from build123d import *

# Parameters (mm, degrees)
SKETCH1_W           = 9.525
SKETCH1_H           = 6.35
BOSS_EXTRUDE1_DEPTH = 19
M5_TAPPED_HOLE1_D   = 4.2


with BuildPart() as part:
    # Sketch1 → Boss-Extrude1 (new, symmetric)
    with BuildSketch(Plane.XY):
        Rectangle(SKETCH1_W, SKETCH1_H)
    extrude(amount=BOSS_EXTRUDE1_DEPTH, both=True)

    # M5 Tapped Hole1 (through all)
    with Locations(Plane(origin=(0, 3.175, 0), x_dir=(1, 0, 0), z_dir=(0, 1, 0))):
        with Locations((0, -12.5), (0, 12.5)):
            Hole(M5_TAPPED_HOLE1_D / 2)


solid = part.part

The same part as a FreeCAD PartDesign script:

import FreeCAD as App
import Part
import Sketcher

V = App.Vector

doc = App.newDocument("Part")
body = doc.addObject("PartDesign::Body", "Body")

sketch1 = body.newObject("Sketcher::SketchObject", "Sketch")
sketch1.AttachmentSupport = (doc.getObject("XY_Plane"), [""])
sketch1.MapMode = "FlatFace"
sketch1.addGeometry(Part.LineSegment(V(-5, 3, 0), V(-5, -3, 0)), False)
sketch1.addGeometry(Part.LineSegment(V(-5, -3, 0), V(5, -3, 0)), False)
sketch1.addGeometry(Part.LineSegment(V(5, -3, 0), V(5, 3, 0)), False)
sketch1.addGeometry(Part.LineSegment(V(5, 3, 0), V(-5, 3, 0)), False)
sketch1.addConstraint(Sketcher.Constraint("Coincident", 0, 2, 1, 1))
sketch1.addConstraint(Sketcher.Constraint("Coincident", 1, 2, 2, 1))
sketch1.addConstraint(Sketcher.Constraint("Coincident", 2, 2, 3, 1))
sketch1.addConstraint(Sketcher.Constraint("Coincident", 3, 2, 0, 1))
sketch1.addConstraint(Sketcher.Constraint("Vertical", 0))
sketch1.addConstraint(Sketcher.Constraint("Horizontal", 1))
sketch1.addConstraint(Sketcher.Constraint("Vertical", 2))
sketch1.addConstraint(Sketcher.Constraint("Horizontal", 3))
sketch1.addConstraint(Sketcher.Constraint("Symmetric", 0, 2, 2, 2, -1, 1))
sketch1.addConstraint(Sketcher.Constraint("DistanceY", 0, 2, 0, 1, 6.35))
sketch1.addConstraint(Sketcher.Constraint("DistanceX", 1, 1, 1, 2, 9.525))
pad1 = body.newObject("PartDesign::Pad", "Pad")
pad1.Profile = sketch1
pad1.Length = 38
pad1.Midplane = True

sketch2 = body.newObject("Sketcher::SketchObject", "Sketch001")
sketch2.AttachmentSupport = (doc.getObject("XZ_Plane"), [""])
sketch2.MapMode = "FlatFace"
sketch2.AttachmentOffset = App.Placement(V(0, 0, -3.175), App.Rotation())
sketch2.addGeometry(Part.Circle(V(0, 12.5, 0), V(0, 0, 1), 2.1), False)
sketch2.addGeometry(Part.Circle(V(0, -12.5, 0), V(0, 0, 1), 2.1), False)
sketch2.addConstraint(Sketcher.Constraint("Equal", 0, 1))
sketch2.addConstraint(Sketcher.Constraint("Symmetric", 0, 3, 1, 3, -1, 1))
sketch2.addConstraint(Sketcher.Constraint("PointOnObject", 0, 3, -2))
sketch2.addConstraint(Sketcher.Constraint("Diameter", 0, 4.2))
sketch2.addConstraint(Sketcher.Constraint("DistanceY", 1, 3, 0, 3, 25.0))
doc.recompute()
hole = body.newObject("PartDesign::Hole", "Hole")
hole.Profile = sketch2
hole.ThreadType = "None"
hole.Diameter = 4.2
hole.DepthType = "ThroughAll"
hole.Reversed = True

doc.recompute()
